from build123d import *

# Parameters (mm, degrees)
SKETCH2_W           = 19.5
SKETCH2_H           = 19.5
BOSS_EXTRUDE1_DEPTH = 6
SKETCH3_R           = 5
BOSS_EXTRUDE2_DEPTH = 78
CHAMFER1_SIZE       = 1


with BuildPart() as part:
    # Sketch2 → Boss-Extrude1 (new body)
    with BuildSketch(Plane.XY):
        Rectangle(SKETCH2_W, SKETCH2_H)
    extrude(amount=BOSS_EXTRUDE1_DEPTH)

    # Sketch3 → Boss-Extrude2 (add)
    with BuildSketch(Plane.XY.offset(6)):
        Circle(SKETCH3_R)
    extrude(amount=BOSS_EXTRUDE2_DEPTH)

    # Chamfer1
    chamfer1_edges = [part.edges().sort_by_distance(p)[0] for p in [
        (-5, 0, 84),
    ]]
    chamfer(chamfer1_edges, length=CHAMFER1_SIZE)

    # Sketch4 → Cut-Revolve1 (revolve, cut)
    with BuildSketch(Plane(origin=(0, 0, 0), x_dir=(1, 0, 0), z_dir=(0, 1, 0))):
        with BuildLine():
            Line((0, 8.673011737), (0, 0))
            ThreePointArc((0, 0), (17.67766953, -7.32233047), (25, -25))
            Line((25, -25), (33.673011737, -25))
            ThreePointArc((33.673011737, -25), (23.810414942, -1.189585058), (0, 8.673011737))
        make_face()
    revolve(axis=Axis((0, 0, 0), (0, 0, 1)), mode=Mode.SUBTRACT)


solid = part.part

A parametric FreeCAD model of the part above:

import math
import FreeCAD as App
import Part
import Sketcher


def edges_at(feature, points):
    """Names of the edges that pass closest to the given points."""
    edges = feature.Shape.Edges
    near = lambda p: min(range(len(edges)), key=lambda i: edges[i].distToShape(Part.Vertex(*p))[0])
    return sorted({f"Edge{near(p) + 1}" for p in points})

doc = App.newDocument("Part")
body = doc.addObject("PartDesign::Body", "Body")

# Sketch on XY plane
sketch1 = body.newObject("Sketcher::SketchObject", "Sketch")
sketch1.AttachmentSupport = (doc.getObject("XY_Plane"), [""])
sketch1.MapMode = "FlatFace"
sketch1.addGeometry([
    Part.LineSegment(App.Vector(-10, 10, 0), App.Vector(-10, -10, 0)),
    Part.LineSegment(App.Vector(-10, -10, 0), App.Vector(10, -10, 0)),
    Part.LineSegment(App.Vector(10, -10, 0), App.Vector(10, 10, 0)),
    Part.LineSegment(App.Vector(10, 10, 0), App.Vector(-10, 10, 0)),
], False)
sketch1.addConstraint([
    Sketcher.Constraint("Coincident", 0, 2, 1, 1),
    Sketcher.Constraint("Coincident", 1, 2, 2, 1),
    Sketcher.Constraint("Coincident", 2, 2, 3, 1),
    Sketcher.Constraint("Coincident", 3, 2, 0, 1),
    Sketcher.Constraint("Vertical", 0),
    Sketcher.Constraint("Horizontal", 1),
    Sketcher.Constraint("Vertical", 2),
    Sketcher.Constraint("Horizontal", 3),
    Sketcher.Constraint("Symmetric", 0, 2, 2, 2, -1, 1),
    Sketcher.Constraint("Equal", 3, 0),
    Sketcher.Constraint("DistanceX", 1, 1, 1, 2, 19.5),
])
pad1 = body.newObject("PartDesign::Pad", "Pad")
pad1.Profile = sketch1
pad1.Length = 6

# Sketch on XY plane
sketch2 = body.newObject("Sketcher::SketchObject", "Sketch001")
sketch2.AttachmentSupport = (doc.getObject("XY_Plane"), [""])
sketch2.MapMode = "FlatFace"
sketch2.AttachmentOffset = App.Placement(App.Vector(0, 0, 6), App.Rotation())
sketch2.addGeometry(Part.Circle(App.Vector(0, 0, 0), App.Vector(0, 0, 1), 5), False)
sketch2.addConstraint([
    Sketcher.Constraint("Coincident", 0, 3, -1, 1),
    Sketcher.Constraint("Diameter", 0, 10.0),
])
pad2 = body.newObject("PartDesign::Pad", "Pad001")
pad2.Profile = sketch2
pad2.Length = 78
doc.recompute()

chamfer = body.newObject("PartDesign::Chamfer", "Chamfer")
chamfer.Base = (pad2, edges_at(pad2, [(-5, 0, 84)]))
chamfer.Size = 1

# Sketch on XZ plane
sketch3 = body.newObject("Sketcher::SketchObject", "Sketch002")
sketch3.AttachmentSupport = (doc.getObject("XZ_Plane"), [""])
sketch3.MapMode = "FlatFace"
sketch3.addGeometry([
    Part.LineSegment(App.Vector(0, -9, 0), App.Vector(0, 0, 0)),
    Part.ArcOfCircle(Part.Circle(App.Vector(0, 25, 0), App.Vector(0, 0, 1), 25), math.radians(-90), math.radians(0)),
    Part.LineSegment(App.Vector(25, 25, 0), App.Vector(34, 25, 0)),
    Part.ArcOfCircle(Part.Circle(App.Vector(0, 25, 0), App.Vector(0, 0, 1), 34), math.radians(-90), math.radians(0)),
], False)
sketch3.addConstraint([
    Sketcher.Constraint("Coincident", 0, 2, 1, 1),
    Sketcher.Constraint("Coincident", 1, 2, 2, 1),
    Sketcher.Constraint("Coincident", 2, 2, 3, 2),
    Sketcher.Constraint("Coincident", 3, 1, 0, 1),
    Sketcher.Constraint("Vertical", 0),
    Sketcher.Constraint("Horizontal", 2),
    Sketcher.Constraint("Coincident", 0, 2, -1, 1),
    Sketcher.Constraint("Coincident", 3, 3, 1, 3),
    Sketcher.Constraint("PointOnObject", 1, 3, -2),
    Sketcher.Constraint("Horizontal", 3, 3, 1, 2),
    Sketcher.Constraint("Radius", 1, 25.0),
    Sketcher.Constraint("Radius", 3, 33.673012),
])
groove = body.newObject("PartDesign::Groove", "Groove")
groove.Profile = sketch3
groove.ReferenceAxis = (sketch3, ["V_Axis"])
groove.Angle = 360

doc.recompute()
